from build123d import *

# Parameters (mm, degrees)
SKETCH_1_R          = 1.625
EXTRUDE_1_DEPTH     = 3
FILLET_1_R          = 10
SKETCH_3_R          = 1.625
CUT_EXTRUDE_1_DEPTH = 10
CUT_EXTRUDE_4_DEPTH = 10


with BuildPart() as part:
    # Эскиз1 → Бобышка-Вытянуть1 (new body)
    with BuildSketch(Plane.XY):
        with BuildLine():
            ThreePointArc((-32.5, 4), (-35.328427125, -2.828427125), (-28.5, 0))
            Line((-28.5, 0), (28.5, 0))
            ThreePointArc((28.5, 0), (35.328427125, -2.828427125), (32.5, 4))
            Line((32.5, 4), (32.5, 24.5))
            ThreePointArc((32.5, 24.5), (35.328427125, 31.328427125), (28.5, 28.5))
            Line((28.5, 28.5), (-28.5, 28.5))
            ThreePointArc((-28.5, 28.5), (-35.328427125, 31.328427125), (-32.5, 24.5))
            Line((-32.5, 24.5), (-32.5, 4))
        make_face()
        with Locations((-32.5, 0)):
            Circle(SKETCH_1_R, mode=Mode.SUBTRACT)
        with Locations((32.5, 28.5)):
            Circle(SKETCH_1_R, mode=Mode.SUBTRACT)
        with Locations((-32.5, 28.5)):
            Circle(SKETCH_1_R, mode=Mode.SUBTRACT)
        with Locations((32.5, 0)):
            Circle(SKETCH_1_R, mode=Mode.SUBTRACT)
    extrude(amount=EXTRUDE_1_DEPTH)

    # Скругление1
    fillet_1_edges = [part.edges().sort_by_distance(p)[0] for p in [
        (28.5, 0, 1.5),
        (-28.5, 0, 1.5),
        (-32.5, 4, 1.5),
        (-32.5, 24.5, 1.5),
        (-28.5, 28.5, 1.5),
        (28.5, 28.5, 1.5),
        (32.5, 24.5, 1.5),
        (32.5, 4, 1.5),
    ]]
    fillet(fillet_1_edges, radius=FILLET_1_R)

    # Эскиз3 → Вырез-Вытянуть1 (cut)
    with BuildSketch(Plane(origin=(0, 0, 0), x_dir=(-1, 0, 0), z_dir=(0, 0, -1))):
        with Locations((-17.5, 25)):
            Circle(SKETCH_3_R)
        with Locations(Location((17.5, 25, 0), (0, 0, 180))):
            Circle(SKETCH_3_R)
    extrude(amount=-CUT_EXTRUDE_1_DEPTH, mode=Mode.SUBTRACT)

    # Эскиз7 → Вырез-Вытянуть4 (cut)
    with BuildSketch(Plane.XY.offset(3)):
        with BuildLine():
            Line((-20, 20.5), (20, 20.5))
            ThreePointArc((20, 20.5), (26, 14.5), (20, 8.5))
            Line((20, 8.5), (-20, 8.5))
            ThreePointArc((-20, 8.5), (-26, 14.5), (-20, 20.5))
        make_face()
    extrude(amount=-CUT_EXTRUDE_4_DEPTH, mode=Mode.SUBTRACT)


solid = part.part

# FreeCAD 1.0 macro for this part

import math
import FreeCAD as App
import Part
import Sketcher

V = App.Vector


def edges_at(feature, points):
    """Names of the edges that pass closest to the given points."""
    edges = feature.Shape.Edges
    near = lambda p: min(range(len(edges)), key=lambda i: edges[i].distToShape(Part.Vertex(*p))[0])
    return sorted({f"Edge{near(p) + 1}" for p in points})

doc = App.newDocument("Part")
body = doc.addObject("PartDesign::Body", "Body")

sketch1 = body.newObject("Sketcher::SketchObject", "Sketch")
sketch1.AttachmentSupport = (doc.getObject("XY_Plane"), [""])
sketch1.MapMode = "FlatFace"
sketch1.addGeometry([
    Part.ArcOfCircle(Part.Circle(V(-32.5, 0, 0), V(0, 0, 1), 4), math.radians(90), math.radians(360)),
    Part.LineSegment(V(-28.5, 0, 0), V(28.5, 0, 0)),
    Part.ArcOfCircle(Part.Circle(V(32.5, 0, 0), V(0, 0, 1), 4), math.radians(180), math.radians(450)),
    Part.LineSegment(V(32.5, 4, 0), V(32.5, 24.5, 0)),
    Part.ArcOfCircle(Part.Circle(V(32.5, 28.5, 0), V(0, 0, 1), 4), math.radians(-90), math.radians(180)),
    Part.LineSegment(V(28.5, 28.5, 0), V(-28.5, 28.5, 0)),
    Part.ArcOfCircle(Part.Circle(V(-32.5, 28.5, 0), V(0, 0, 1), 4), math.radians(0), math.radians(270)),
    Part.LineSegment(V(-32.5, 24.5, 0), V(-32.5, 4, 0)),
    Part.Circle(V(-32.5, 0, 0), V(0, 0, 1), 1.6),
    Part.Circle(V(32.5, 0, 0), V(0, 0, 1), 1.6),
    Part.Circle(V(-32.5, 28.5, 0), V(0, 0, 1), 1.6),
    Part.Circle(V(32.5, 28.5, 0), V(0, 0, 1), 1.6),
], False)
sketch1.addConstraint([
    Sketcher.Constraint("Coincident", 0, 2, 1, 1),
    Sketcher.Constraint("Coincident", 1, 2, 2, 1),
    Sketcher.Constraint("Coincident", 2, 2, 3, 1),
    Sketcher.Constraint("Coincident", 3, 2, 4, 1),
    Sketcher.Constraint("Coincident", 4, 2, 5, 1),
    Sketcher.Constraint("Coincident", 5, 2, 6, 1),
    Sketcher.Constraint("Coincident", 6, 2, 7, 1),
    Sketcher.Constraint("Coincident", 7, 2, 0, 1),
    Sketcher.Constraint("Horizontal", 1),
    Sketcher.Constraint("Vertical", 3),
    Sketcher.Constraint("Horizontal", 5),
    Sketcher.Constraint("Vertical", 7),
    Sketcher.Constraint("Coincident", 8, 3, 0, 3),
    Sketcher.Constraint("Coincident", 9, 3, 2, 3),
    Sketcher.Constraint("Coincident", 10, 3, 6, 3),
    Sketcher.Constraint("Coincident", 11, 3, 4, 3),
    Sketcher.Constraint("Equal", 0, 2),
    Sketcher.Constraint("Equal", 2, 4),
    Sketcher.Constraint("Equal", 4, 6),
    Sketcher.Constraint("Equal", 8, 9),
    Sketcher.Constraint("Equal", 9, 10),
    Sketcher.Constraint("Equal", 10, 11),
    Sketcher.Constraint("Symmetric", 0, 3, 2, 3, -1, 1),
    Sketcher.Constraint("Symmetric", 4, 3, 6, 3, -2),
    Sketcher.Constraint("Symmetric", 2, 2, 7, 2, -2),
    Sketcher.Constraint("PointOnObject", 0, 2, -1),
    Sketcher.Constraint("Horizontal", 11, 3, 4, 2),
    Sketcher.Constraint("Vertical", 2, 3, 4, 3),
    Sketcher.Constraint("Vertical", 11, 3, 2, 2),
    Sketcher.Constraint("Radius", 0, 4.0),
    Sketcher.Constraint("Diameter", 8, 3.25),
    Sketcher.Constraint("DistanceX", 1, 1, 1, 2, 57.0),
    Sketcher.Constraint("DistanceY", 3, 1, 3, 2, 20.5),
])
pad1 = body.newObject("PartDesign::Pad", "Pad")
pad1.Profile = sketch1
pad1.Length = 3
doc.recompute()

fillet = body.newObject("PartDesign::Fillet", "Fillet")
fillet.Base = (pad1, edges_at(pad1, [
    (28.5, 0, 1.5),
    (-28.5, 0, 1.5),
    (-32.5, 4, 1.5),
    (-32.5, 24.5, 1.5),
    (-28.5, 28.5, 1.5),
    (28.5, 28.5, 1.5),
    (32.5, 24.5, 1.5),
    (32.5, 4, 1.5),
]))
fillet.Radius = 10

sketch2 = body.newObject("Sketcher::SketchObject", "Sketch001")
sketch2.AttachmentSupport = (doc.getObject("XY_Plane"), [""])
sketch2.MapMode = "FlatFace"
sketch2.addGeometry([
    Part.Circle(V(17.5, 25, 0), V(0, 0, 1), 1.6),
    Part.Circle(V(-17.5, 25, 0), V(0, 0, 1), 1.6),
], False)
sketch2.addConstraint([
    Sketcher.Constraint("Equal", 0, 1),
    Sketcher.Constraint("Symmetric", 0, 3, 1, 3, -2),
    Sketcher.Constraint("Diameter", 0, 3.25),
    Sketcher.Constraint("DistanceY", -1, 1, 0, 3, 25.0),
    Sketcher.Constraint("DistanceX", 1, 3, 0, 3, 35.0),
])
pocket1 = body.newObject("PartDesign::Pocket", "Pocket")
pocket1.Profile = sketch2
pocket1.Length = 10
pocket1.Reversed = True

sketch3 = body.newObject("Sketcher::SketchObject", "Sketch002")
sketch3.AttachmentSupport = (doc.getObject("XY_Plane"), [""])
sketch3.MapMode = "FlatFace"
sketch3.AttachmentOffset = App.Placement(V(0, 0, 3), App.Rotation())
sketch3.addGeometry([
    Part.LineSegment(V(20, 20, 0), V(-20, 20, 0)),
    Part.ArcOfCircle(Part.Circle(V(-20, 14, 0), V(0, 0, 1), 6), math.radians(90), math.radians(270)),
    Part.LineSegment(V(-20, 8, 0), V(20, 8, 0)),
    Part.ArcOfCircle(Part.Circle(V(20, 14, 0), V(0, 0, 1), 6), math.radians(-90), math.radians(90)),
], False)
sketch3.addConstraint([
    Sketcher.Constraint("Tangent", 0, 2, 1, 1),
    Sketcher.Constraint("Tangent", 1, 2, 2, 1),
    Sketcher.Constraint("Tangent", 2, 2, 3, 1),
    Sketcher.Constraint("Tangent", 3, 2, 0, 1),
    Sketcher.Constraint("Horizontal", 0),
    Sketcher.Constraint("Horizontal", 2),
    Sketcher.Constraint("Radius", 1, 6.0),
    Sketcher.Constraint("DistanceX", 0, 2, 0, 1, 40.0),
    Sketcher.Constraint("DistanceX", 1, 3, -1, 1, 20.0),
    Sketcher.Constraint("DistanceY", -1, 1, 1, 3, 14.5),
])
pocket2 = body.newObject("PartDesign::Pocket", "Pocket001")
pocket2.Profile = sketch3
pocket2.Length = 10

doc.recompute()
